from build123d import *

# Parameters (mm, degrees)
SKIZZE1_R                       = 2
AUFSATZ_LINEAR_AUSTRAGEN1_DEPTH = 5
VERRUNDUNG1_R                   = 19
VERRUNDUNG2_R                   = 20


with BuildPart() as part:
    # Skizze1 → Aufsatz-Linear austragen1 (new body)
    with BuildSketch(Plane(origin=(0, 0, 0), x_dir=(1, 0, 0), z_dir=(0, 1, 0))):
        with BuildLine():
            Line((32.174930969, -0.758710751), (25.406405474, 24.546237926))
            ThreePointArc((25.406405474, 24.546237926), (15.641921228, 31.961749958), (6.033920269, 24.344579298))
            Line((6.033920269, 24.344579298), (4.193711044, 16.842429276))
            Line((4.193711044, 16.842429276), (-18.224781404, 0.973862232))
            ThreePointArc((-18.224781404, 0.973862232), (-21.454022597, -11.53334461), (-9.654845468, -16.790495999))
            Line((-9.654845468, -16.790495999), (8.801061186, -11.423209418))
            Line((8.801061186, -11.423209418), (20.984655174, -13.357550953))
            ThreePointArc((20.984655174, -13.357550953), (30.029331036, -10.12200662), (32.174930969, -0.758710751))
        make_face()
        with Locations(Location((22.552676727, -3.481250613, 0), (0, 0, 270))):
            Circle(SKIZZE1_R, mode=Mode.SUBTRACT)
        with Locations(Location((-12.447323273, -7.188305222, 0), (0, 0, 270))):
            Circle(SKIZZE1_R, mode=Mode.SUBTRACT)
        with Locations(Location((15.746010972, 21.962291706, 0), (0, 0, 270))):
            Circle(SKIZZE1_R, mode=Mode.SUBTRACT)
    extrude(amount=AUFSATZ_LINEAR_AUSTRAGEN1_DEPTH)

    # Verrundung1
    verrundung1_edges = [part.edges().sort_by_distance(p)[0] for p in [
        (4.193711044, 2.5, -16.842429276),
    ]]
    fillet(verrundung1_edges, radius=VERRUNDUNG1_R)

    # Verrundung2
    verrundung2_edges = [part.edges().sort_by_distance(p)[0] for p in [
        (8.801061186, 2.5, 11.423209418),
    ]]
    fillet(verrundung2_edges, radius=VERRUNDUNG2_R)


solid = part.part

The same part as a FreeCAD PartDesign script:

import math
import FreeCAD as App
import Part
import Sketcher

V = App.Vector
Q = App.Units.Quantity


def edges_at(feature, points):
    """Names of the edges that pass closest to the given points."""
    edges = feature.Shape.Edges
    near = lambda p: min(range(len(edges)), key=lambda i: edges[i].distToShape(Part.Vertex(*p))[0])
    return sorted({f"Edge{near(p) + 1}" for p in points})

doc = App.newDocument("Part")
body = doc.addObject("PartDesign::Body", "Body")

sketch1 = body.newObject("Sketcher::SketchObject", "Sketch")
sketch1.AttachmentSupport = (doc.getObject("XZ_Plane"), [""])
sketch1.MapMode = "FlatFace"
sketch1.addGeometry(Part.LineSegment(V(32.174931, 0.758711, 0), V(25.406405, -24.546238, 0)), False)
sketch1.addGeometry(Part.ArcOfCircle(Part.Circle(V(15.746011, -21.962292, 0), V(0, 0, 1), 10), math.radians(-166.217976), math.radians(-14.974826)), False)
sketch1.addGeometry(Part.LineSegment(V(6.03392, -24.344579, 0), V(4.193711, -16.842429, 0)), False)
sketch1.addGeometry(Part.LineSegment(V(4.193711, -16.842429, 0), V(-18.224781, -0.973862, 0)), False)
sketch1.addGeometry(Part.ArcOfCircle(Part.Circle(V(-12.447323, 7.188305, 0), V(0, 0, 1), 10), math.radians(73.784685), math.radians(234.707849)), False)
sketch1.addGeometry(Part.LineSegment(V(-9.654845, 16.790496, 0), V(8.801061, 11.423209, 0)), False)
sketch1.addGeometry(Part.LineSegment(V(8.801061, 11.423209, 0), V(20.984655, 13.357551, 0)), False)
sketch1.addGeometry(Part.ArcOfCircle(Part.Circle(V(22.552677, 3.481251, 0), V(0, 0, 1), 10), math.radians(-15.798436), math.radians(99.02133)), False)
sketch1.addGeometry(Part.Circle(V(-12.447323, 7.188305, 0), V(0, 0, 1), 2), False)
sketch1.addGeometry(Part.Circle(V(22.552677, 3.481251, 0), V(0, 0, 1), 2), False)
sketch1.addGeometry(Part.Circle(V(15.746011, -21.962292, 0), V(0, 0, 1), 2), False)
sketch1.addConstraint(Sketcher.Constraint("Tangent", 0, 2, 1, 2))
sketch1.addConstraint(Sketcher.Constraint("Tangent", 1, 1, 2, 1))
sketch1.addConstraint(Sketcher.Constraint("Coincident", 2, 2, 3, 1))
sketch1.addConstraint(Sketcher.Constraint("Tangent", 3, 2, 4, 2))
sketch1.addConstraint(Sketcher.Constraint("Tangent", 4, 1, 5, 1))
sketch1.addConstraint(Sketcher.Constraint("Coincident", 5, 2, 6, 1))
sketch1.addConstraint(Sketcher.Constraint("Tangent", 6, 2, 7, 2))
sketch1.addConstraint(Sketcher.Constraint("Coincident", 7, 1, 0, 1))
sketch1.addConstraint(Sketcher.Constraint("Coincident", 8, 3, 4, 3))
sketch1.addConstraint(Sketcher.Constraint("Coincident", 9, 3, 7, 3))
sketch1.addConstraint(Sketcher.Constraint("Coincident", 10, 3, 1, 3))
sketch1.addConstraint(Sketcher.Constraint("Equal", 1, 4))
sketch1.addConstraint(Sketcher.Constraint("Equal", 4, 7))
sketch1.addConstraint(Sketcher.Constraint("Equal", 8, 9))
sketch1.addConstraint(Sketcher.Constraint("Equal", 9, 10))
sketch1.addConstraint(Sketcher.Constraint("Diameter", 8, Q("4 mm")))
sketch1.addConstraint(Sketcher.Constraint("Radius", 1, Q("10 mm")))
sketch1.addConstraint(Sketcher.Constraint("DistanceX", 4, 3, 7, 3, Q("35 mm")))
sketch1.addConstraint(Sketcher.Constraint("DistanceX", 2, 2, 10, 3, Q("11.5523 mm")))
sketch1.addConstraint(Sketcher.Constraint("DistanceX", 3, 2, 1, 1, Q("24.258702 mm")))
sketch1.addConstraint(Sketcher.Constraint("DistanceY", 7, 3, 6, 2, Q("9.8763 mm")))
sketch1.addConstraint(Sketcher.Constraint("DistanceX", 4, 1, 6, 2, Q("30.639501 mm")))
sketch1.addConstraint(Sketcher.Constraint("DistanceY", 7, 1, 5, 2, Q("10.664499 mm")))
sketch1.addConstraint(Sketcher.Constraint("Distance", 0, Q("26.194529 mm")))
sketch1.addConstraint(Sketcher.Constraint("DistanceX", -1, 1, 1, 3, Q("15.746011 mm")))
sketch1.addConstraint(Sketcher.Constraint("DistanceY", 1, 3, -1, 1, Q("21.962292 mm")))
sketch1.addConstraint(Sketcher.Constraint("DistanceY", -1, 1, 7, 3, Q("3.481251 mm")))
sketch1.addConstraint(Sketcher.Constraint("DistanceX", -1, 1, 1, 1, Q("6.03392 mm")))
pad1 = body.newObject("PartDesign::Pad", "Pad")
pad1.Profile = sketch1
pad1.Length = 5
pad1.Reversed = True
doc.recompute()

fillet = body.newObject("PartDesign::Fillet", "Fillet")
fillet.Base = (pad1, edges_at(pad1, [(4.194, 2.5, -16.842)]))
fillet.Radius = 19
doc.recompute()

fillet2 = body.newObject("PartDesign::Fillet", "Fillet001")
fillet2.Base = (fillet, edges_at(fillet, [(8.801, 2.5, 11.423)]))
fillet2.Radius = 20

doc.recompute()
